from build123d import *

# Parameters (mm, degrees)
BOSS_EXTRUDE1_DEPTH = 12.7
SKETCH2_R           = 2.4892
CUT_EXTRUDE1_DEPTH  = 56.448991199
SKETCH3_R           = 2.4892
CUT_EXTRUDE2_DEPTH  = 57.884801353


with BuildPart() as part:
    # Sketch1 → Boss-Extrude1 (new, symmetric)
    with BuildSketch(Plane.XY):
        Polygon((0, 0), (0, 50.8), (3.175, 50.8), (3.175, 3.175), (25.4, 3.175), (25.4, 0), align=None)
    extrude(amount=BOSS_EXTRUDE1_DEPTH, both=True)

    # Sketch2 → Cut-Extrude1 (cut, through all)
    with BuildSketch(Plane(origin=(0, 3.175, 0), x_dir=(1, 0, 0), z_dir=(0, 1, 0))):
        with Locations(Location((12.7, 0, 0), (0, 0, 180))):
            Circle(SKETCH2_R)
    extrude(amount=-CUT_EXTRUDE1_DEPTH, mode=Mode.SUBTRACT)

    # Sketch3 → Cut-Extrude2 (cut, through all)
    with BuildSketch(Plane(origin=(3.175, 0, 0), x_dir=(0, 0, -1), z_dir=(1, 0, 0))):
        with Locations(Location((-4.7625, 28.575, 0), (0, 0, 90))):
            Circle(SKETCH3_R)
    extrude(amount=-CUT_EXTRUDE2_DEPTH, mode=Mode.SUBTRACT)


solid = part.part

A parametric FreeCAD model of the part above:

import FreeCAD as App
import Part
import Sketcher
from FreeCAD import Vector
Q = App.Units.Quantity

doc = App.newDocument("Part")
body = doc.addObject("PartDesign::Body", "Body")

# Sketch on XY plane
sketch1 = body.newObject("Sketcher::SketchObject", "Sketch")
sketch1.AttachmentSupport = (doc.getObject("XY_Plane"), [""])
sketch1.MapMode = "FlatFace"
sketch1.addGeometry(Part.LineSegment(Vector(0, 50.8, 0), Vector(0, 0, 0)), False)
sketch1.addGeometry(Part.LineSegment(Vector(0, 0, 0), Vector(25.4, 0, 0)), False)
sketch1.addGeometry(Part.LineSegment(Vector(25.4, 0, 0), Vector(25.4, 3.2, 0)), False)
sketch1.addGeometry(Part.LineSegment(Vector(25.4, 3.2, 0), Vector(3.2, 3.2, 0)), False)
sketch1.addGeometry(Part.LineSegment(Vector(3.2, 3.2, 0), Vector(3.2, 50.8, 0)), False)
sketch1.addGeometry(Part.LineSegment(Vector(3.2, 50.8, 0), Vector(0, 50.8, 0)), False)
sketch1.addConstraint(Sketcher.Constraint("Coincident", 0, 2, 1, 1))
sketch1.addConstraint(Sketcher.Constraint("Coincident", 1, 2, 2, 1))
sketch1.addConstraint(Sketcher.Constraint("Coincident", 2, 2, 3, 1))
sketch1.addConstraint(Sketcher.Constraint("Coincident", 3, 2, 4, 1))
sketch1.addConstraint(Sketcher.Constraint("Coincident", 4, 2, 5, 1))
sketch1.addConstraint(Sketcher.Constraint("Coincident", 5, 2, 0, 1))
sketch1.addConstraint(Sketcher.Constraint("Vertical", 0))
sketch1.addConstraint(Sketcher.Constraint("Horizontal", 1))
sketch1.addConstraint(Sketcher.Constraint("Vertical", 2))
sketch1.addConstraint(Sketcher.Constraint("Horizontal", 3))
sketch1.addConstraint(Sketcher.Constraint("Vertical", 4))
sketch1.addConstraint(Sketcher.Constraint("Horizontal", 5))
sketch1.addConstraint(Sketcher.Constraint("Coincident", 0, 2, -1, 1))
sketch1.addConstraint(Sketcher.Constraint("Equal", 5, 2))
sketch1.addConstraint(Sketcher.Constraint("DistanceX", 1, 1, 1, 2, Q("1 in")))
sketch1.addConstraint(Sketcher.Constraint("DistanceY", 0, 2, 0, 1, Q("2 in")))
sketch1.addConstraint(Sketcher.Constraint("DistanceX", 3, 2, 3, 1, Q("0.875 in")))
pad1 = body.newObject("PartDesign::Pad", "Pad")
pad1.Profile = sketch1
pad1.Length = Q("1 in")
pad1.Midplane = True

# Sketch on XZ plane
sketch2 = body.newObject("Sketcher::SketchObject", "Sketch001")
sketch2.AttachmentSupport = (doc.getObject("XZ_Plane"), [""])
sketch2.MapMode = "FlatFace"
sketch2.AttachmentOffset = App.Placement(Vector(0, 0, -0.125 * 25.4), App.Rotation())
sketch2.addGeometry(Part.Circle(Vector(12.7, 0, 0), Vector(0, 0, 1), 2.5), False)
sketch2.addConstraint(Sketcher.Constraint("PointOnObject", 0, 3, -1))
sketch2.addConstraint(Sketcher.Constraint("Diameter", 0, Q("0.196 in")))
sketch2.addConstraint(Sketcher.Constraint("DistanceX", -1, 1, 0, 3, Q("0.5 in")))
pocket1 = body.newObject("PartDesign::Pocket", "Pocket")
pocket1.Profile = sketch2
pocket1.Type = "ThroughAll"
pocket1.Reversed = True

# Sketch on YZ plane
sketch3 = body.newObject("Sketcher::SketchObject", "Sketch002")
sketch3.AttachmentSupport = (doc.getObject("YZ_Plane"), [""])
sketch3.MapMode = "FlatFace"
sketch3.AttachmentOffset = App.Placement(Vector(0, 0, 0.125 * 25.4), App.Rotation())
sketch3.addGeometry(Part.Circle(Vector(28.6, 4.8, 0), Vector(0, 0, 1), 2.5), False)
sketch3.addConstraint(Sketcher.Constraint("Diameter", 0, Q("0.196 in")))
sketch3.addConstraint(Sketcher.Constraint("DistanceX", -1, 1, 0, 3, Q("1.125 in")))
sketch3.addConstraint(Sketcher.Constraint("DistanceY", -1, 1, 0, 3, Q("0.1875 in")))
pocket2 = body.newObject("PartDesign::Pocket", "Pocket001")
pocket2.Profile = sketch3
pocket2.Type = "ThroughAll"

doc.recompute()
